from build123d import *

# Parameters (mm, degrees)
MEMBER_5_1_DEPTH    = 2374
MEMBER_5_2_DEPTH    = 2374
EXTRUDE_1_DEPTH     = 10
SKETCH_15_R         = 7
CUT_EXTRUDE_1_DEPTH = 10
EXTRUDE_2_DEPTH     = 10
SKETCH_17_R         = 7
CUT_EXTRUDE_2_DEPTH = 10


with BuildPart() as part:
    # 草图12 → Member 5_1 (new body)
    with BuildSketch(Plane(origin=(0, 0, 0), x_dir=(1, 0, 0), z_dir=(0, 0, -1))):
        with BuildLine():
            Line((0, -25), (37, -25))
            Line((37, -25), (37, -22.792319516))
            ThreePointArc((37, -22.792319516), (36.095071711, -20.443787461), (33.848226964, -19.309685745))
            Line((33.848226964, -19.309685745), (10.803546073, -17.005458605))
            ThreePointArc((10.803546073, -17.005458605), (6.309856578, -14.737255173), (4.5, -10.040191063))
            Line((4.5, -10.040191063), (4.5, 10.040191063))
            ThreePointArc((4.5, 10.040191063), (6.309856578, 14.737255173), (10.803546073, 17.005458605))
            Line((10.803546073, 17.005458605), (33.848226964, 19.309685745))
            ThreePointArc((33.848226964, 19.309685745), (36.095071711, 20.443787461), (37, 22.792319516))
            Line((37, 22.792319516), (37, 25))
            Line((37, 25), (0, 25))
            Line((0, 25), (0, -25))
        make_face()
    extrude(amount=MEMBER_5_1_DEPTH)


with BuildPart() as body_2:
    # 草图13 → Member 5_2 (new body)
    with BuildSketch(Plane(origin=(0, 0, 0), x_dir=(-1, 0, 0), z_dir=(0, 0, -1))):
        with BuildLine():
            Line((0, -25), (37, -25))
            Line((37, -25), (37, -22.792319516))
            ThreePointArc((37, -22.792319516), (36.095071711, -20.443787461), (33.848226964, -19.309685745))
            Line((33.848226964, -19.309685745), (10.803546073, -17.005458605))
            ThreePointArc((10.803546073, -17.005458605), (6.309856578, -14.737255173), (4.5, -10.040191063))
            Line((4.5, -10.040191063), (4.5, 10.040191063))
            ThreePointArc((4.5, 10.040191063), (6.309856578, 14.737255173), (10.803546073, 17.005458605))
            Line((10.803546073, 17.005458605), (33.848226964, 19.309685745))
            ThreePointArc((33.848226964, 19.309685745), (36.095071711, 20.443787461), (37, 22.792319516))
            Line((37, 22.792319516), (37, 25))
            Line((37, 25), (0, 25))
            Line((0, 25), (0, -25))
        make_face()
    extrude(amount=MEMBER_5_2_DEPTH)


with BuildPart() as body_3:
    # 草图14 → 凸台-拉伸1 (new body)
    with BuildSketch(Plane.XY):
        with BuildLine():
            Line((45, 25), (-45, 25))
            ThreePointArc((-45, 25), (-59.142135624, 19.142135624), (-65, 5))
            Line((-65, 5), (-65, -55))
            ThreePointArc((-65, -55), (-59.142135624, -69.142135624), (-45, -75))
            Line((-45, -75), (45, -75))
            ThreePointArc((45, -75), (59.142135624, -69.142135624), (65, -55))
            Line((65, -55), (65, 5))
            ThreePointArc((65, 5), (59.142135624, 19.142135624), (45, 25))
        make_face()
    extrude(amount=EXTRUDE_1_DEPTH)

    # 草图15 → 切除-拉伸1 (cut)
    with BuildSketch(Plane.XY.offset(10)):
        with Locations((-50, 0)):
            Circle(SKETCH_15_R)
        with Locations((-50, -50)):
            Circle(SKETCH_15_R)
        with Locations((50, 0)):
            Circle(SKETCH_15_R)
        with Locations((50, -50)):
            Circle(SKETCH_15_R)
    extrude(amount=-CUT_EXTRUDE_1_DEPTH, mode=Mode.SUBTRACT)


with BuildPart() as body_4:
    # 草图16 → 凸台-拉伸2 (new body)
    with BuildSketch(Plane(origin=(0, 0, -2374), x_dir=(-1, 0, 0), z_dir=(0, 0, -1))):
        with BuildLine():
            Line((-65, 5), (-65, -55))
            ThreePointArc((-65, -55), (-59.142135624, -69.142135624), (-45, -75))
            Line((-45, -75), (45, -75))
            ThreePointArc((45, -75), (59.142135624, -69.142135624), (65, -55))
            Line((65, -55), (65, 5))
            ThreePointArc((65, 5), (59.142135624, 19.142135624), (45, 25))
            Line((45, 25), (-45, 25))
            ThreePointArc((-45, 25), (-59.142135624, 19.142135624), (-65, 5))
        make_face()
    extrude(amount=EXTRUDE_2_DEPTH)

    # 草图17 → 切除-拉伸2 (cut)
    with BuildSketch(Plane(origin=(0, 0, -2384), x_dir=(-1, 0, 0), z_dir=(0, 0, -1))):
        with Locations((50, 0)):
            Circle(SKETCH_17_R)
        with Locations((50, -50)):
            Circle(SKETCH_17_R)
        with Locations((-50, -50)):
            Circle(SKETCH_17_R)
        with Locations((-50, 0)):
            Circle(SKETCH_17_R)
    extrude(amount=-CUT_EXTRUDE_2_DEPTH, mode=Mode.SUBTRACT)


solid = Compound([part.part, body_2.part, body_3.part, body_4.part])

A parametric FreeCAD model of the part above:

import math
import FreeCAD as App
import Part
import Sketcher
Q = App.Units.Quantity

doc = App.newDocument("Part")
params = doc.addObject("Spreadsheet::Sheet", "Params")
for row, (alias, value) in enumerate([
    ("sketch1_radius", "7 mm"),
    ("sketch1_radius2", "3.5 mm"),
    ("sketch1_width", "37 mm"),
    ("sketch1_height", "50 mm"),
    ("pad1_length", "2374 mm"),
    ("sketch2_radius", "7 mm"),
    ("sketch2_radius2", "3.5 mm"),
    ("sketch2_width", "37 mm"),
    ("sketch2_height", "50 mm"),
    ("pad2_length", "2374 mm"),
    ("sketch3_radius", "20 mm"),
    ("sketch3_width", "90 mm"),
    ("sketch3_height", "60 mm"),
    ("pad3_length", "10 mm"),
    ("sketch4_diameter", "14 mm"),
    ("pocket1_length", "10 mm"),
    ("sketch5_radius", "20 mm"),
    ("sketch5_width", "90 mm"),
    ("sketch5_height", "60 mm"),
    ("pad4_length", "10 mm"),
    ("sketch6_diameter", "14 mm"),
    ("pocket2_length", "10 mm"),
], start=1):
    params.set(f"A{row}", alias)
    params.set(f"B{row}", "=" + value)
    params.setAlias(f"B{row}", alias)

body = doc.addObject("PartDesign::Body", "Body")

# Sketch on XY plane
sketch1 = doc.addObject("Sketcher::SketchObject", "Sketch")
body.addObject(sketch1)
sketch1.AttachmentSupport = (doc.XY_Plane, [""])
sketch1.MapMode = "FlatFace"
sketch1.addGeometry([
    Part.LineSegment(App.Vector(0, 25, 0), App.Vector(37, 25, 0)),  # 0
    Part.LineSegment(App.Vector(37, 25, 0), App.Vector(37, 22.8, 0)),  # 1
    Part.ArcOfCircle(Part.Circle(App.Vector(33.5, 22.8, 0), App.Vector(0, 0, 1), 3.5), math.radians(-84), math.radians(0)),  # 2
    Part.LineSegment(App.Vector(33.8, 19.3, 0), App.Vector(10.8, 17, 0)),  # 3
    Part.ArcOfCircle(Part.Circle(App.Vector(11.5, 10, 0), App.Vector(0, 0, 1), 7), math.radians(96), math.radians(180)),  # 4
    Part.LineSegment(App.Vector(4.5, 10, 0), App.Vector(4.5, -10, 0)),  # 5
    Part.ArcOfCircle(Part.Circle(App.Vector(11.5, -10, 0), App.Vector(0, 0, 1), 7), math.radians(-180), math.radians(-96)),  # 6
    Part.LineSegment(App.Vector(10.8, -17, 0), App.Vector(33.8, -19.3, 0)),  # 7
    Part.ArcOfCircle(Part.Circle(App.Vector(33.5, -22.8, 0), App.Vector(0, 0, 1), 3.5), math.radians(0), math.radians(84)),  # 8
    Part.LineSegment(App.Vector(37, -22.8, 0), App.Vector(37, -25, 0)),  # 9
    Part.LineSegment(App.Vector(37, -25, 0), App.Vector(0, -25, 0)),  # 10
    Part.LineSegment(App.Vector(0, -25, 0), App.Vector(0, 25, 0)),  # 11
], False)
sketch1.addConstraint([
    Sketcher.Constraint("Coincident", 0, 2, 1, 1),
    Sketcher.Constraint("Tangent", 1, 2, 2, 2),
    Sketcher.Constraint("Tangent", 2, 1, 3, 1),
    Sketcher.Constraint("Tangent", 3, 2, 4, 1),
    Sketcher.Constraint("Tangent", 4, 2, 5, 1),
    Sketcher.Constraint("Tangent", 5, 2, 6, 1),
    Sketcher.Constraint("Tangent", 6, 2, 7, 1),
    Sketcher.Constraint("Tangent", 7, 2, 8, 2),
    Sketcher.Constraint("Tangent", 8, 1, 9, 1),
    Sketcher.Constraint("Coincident", 9, 2, 10, 1),
    Sketcher.Constraint("Coincident", 10, 2, 11, 1),
    Sketcher.Constraint("Coincident", 11, 2, 0, 1),
    Sketcher.Constraint("Horizontal", 0),
    Sketcher.Constraint("Vertical", 1),
    Sketcher.Constraint("Vertical", 5),
    Sketcher.Constraint("Vertical", 9),
    Sketcher.Constraint("Horizontal", 10),
    Sketcher.Constraint("Vertical", 11),
    Sketcher.Constraint("Equal", 4, 6),
    Sketcher.Constraint("Equal", 2, 8),
    Sketcher.Constraint("Symmetric", 10, 2, 11, 2, -1, 1),
    Sketcher.Constraint("Symmetric", 2, 3, 8, 3, -1),
    Sketcher.Constraint("Vertical", 3, 2, 6, 2),
    Sketcher.Constraint("Radius", 4, 7.0),
    Sketcher.Constraint("Radius", 2, 3.5),
    Sketcher.Constraint("DistanceX", 0, 1, 0, 2, 37.0),
    Sketcher.Constraint("DistanceY", 11, 1, 11, 2, 50.0),
    Sketcher.Constraint("DistanceX", 4, 3, 2, 3, 22.0),
    Sketcher.Constraint("Angle", 3, Q("-174.29 deg")),
    Sketcher.Constraint("DistanceY", 1, 2, 1, 1, 2.20768),
])
sketch1.setExpression("Constraints[23]", "Params.sketch1_radius")
sketch1.setExpression("Constraints[24]", "Params.sketch1_radius2")
sketch1.setExpression("Constraints[25]", "Params.sketch1_width")
sketch1.setExpression("Constraints[26]", "Params.sketch1_height")
pad1 = doc.addObject("PartDesign::Pad", "Pad")
body.addObject(pad1)
pad1.Profile = sketch1
pad1.setExpression("Length", "Params.pad1_length")
pad1.Reversed = True
body2 = doc.addObject("PartDesign::Body", "Body001")

# Sketch on XY plane
sketch2 = doc.addObject("Sketcher::SketchObject", "Sketch001")
body2.addObject(sketch2)
sketch2.AttachmentSupport = (doc.getObject("XY_Plane001"), [""])
sketch2.MapMode = "FlatFace"
sketch2.addGeometry([
    Part.LineSegment(App.Vector(0, -25, 0), App.Vector(-37, -25, 0)),  # 0
    Part.LineSegment(App.Vector(-37, -25, 0), App.Vector(-37, -22.8, 0)),  # 1
    Part.ArcOfCircle(Part.Circle(App.Vector(-33.5, -22.8, 0), App.Vector(0, 0, 1), 3.5), math.radians(96), math.radians(180)),  # 2
    Part.LineSegment(App.Vector(-33.8, -19.3, 0), App.Vector(-10.8, -17, 0)),  # 3
    Part.ArcOfCircle(Part.Circle(App.Vector(-11.5, -10, 0), App.Vector(0, 0, 1), 7), math.radians(-84), math.radians(0)),  # 4
    Part.LineSegment(App.Vector(-4.5, -10, 0), App.Vector(-4.5, 10, 0)),  # 5
    Part.ArcOfCircle(Part.Circle(App.Vector(-11.5, 10, 0), App.Vector(0, 0, 1), 7), math.radians(0), math.radians(84)),  # 6
    Part.LineSegment(App.Vector(-10.8, 17, 0), App.Vector(-33.8, 19.3, 0)),  # 7
    Part.ArcOfCircle(Part.Circle(App.Vector(-33.5, 22.8, 0), App.Vector(0, 0, 1), 3.5), math.radians(-180), math.radians(-96)),  # 8
    Part.LineSegment(App.Vector(-37, 22.8, 0), App.Vector(-37, 25, 0)),  # 9
    Part.LineSegment(App.Vector(-37, 25, 0), App.Vector(0, 25, 0)),  # 10
    Part.LineSegment(App.Vector(0, 25, 0), App.Vector(0, -25, 0)),  # 11
], False)
sketch2.addConstraint([
    Sketcher.Constraint("Coincident", 0, 2, 1, 1),
    Sketcher.Constraint("Tangent", 1, 2, 2, 2),
    Sketcher.Constraint("Tangent", 2, 1, 3, 1),
    Sketcher.Constraint("Tangent", 3, 2, 4, 1),
    Sketcher.Constraint("Tangent", 4, 2, 5, 1),
    Sketcher.Constraint("Tangent", 5, 2, 6, 1),
    Sketcher.Constraint("Tangent", 6, 2, 7, 1),
    Sketcher.Constraint("Tangent", 7, 2, 8, 2),
    Sketcher.Constraint("Tangent", 8, 1, 9, 1),
    Sketcher.Constraint("Coincident", 9, 2, 10, 1),
    Sketcher.Constraint("Coincident", 10, 2, 11, 1),
    Sketcher.Constraint("Coincident", 11, 2, 0, 1),
    Sketcher.Constraint("Horizontal", 0),
    Sketcher.Constraint("Vertical", 1),
    Sketcher.Constraint("Vertical", 5),
    Sketcher.Constraint("Vertical", 9),
    Sketcher.Constraint("Horizontal", 10),
    Sketcher.Constraint("Vertical", 11),
    Sketcher.Constraint("Equal", 4, 6),
    Sketcher.Constraint("Equal", 2, 8),
    Sketcher.Constraint("Symmetric", 10, 2, 11, 2, -1, 1),
    Sketcher.Constraint("Symmetric", 2, 3, 8, 3, -1),
    Sketcher.Constraint("Vertical", 3, 2, 6, 2),
    Sketcher.Constraint("Radius", 4, 7.0),
    Sketcher.Constraint("Radius", 2, 3.5),
    Sketcher.Constraint("DistanceX", 0, 2, 0, 1, 37.0),
    Sketcher.Constraint("DistanceY", 11, 2, 11, 1, 50.0),
    Sketcher.Constraint("DistanceX", 2, 3, 4, 3, 22.0),
    Sketcher.Constraint("Angle", 3, Q("5.71 deg")),
    Sketcher.Constraint("DistanceY", 1, 1, 1, 2, 2.20768),
])
sketch2.setExpression("Constraints[23]", "Params.sketch2_radius")
sketch2.setExpression("Constraints[24]", "Params.sketch2_radius2")
sketch2.setExpression("Constraints[25]", "Params.sketch2_width")
sketch2.setExpression("Constraints[26]", "Params.sketch2_height")
pad2 = doc.addObject("PartDesign::Pad", "Pad001")
body2.addObject(pad2)
pad2.Profile = sketch2
pad2.setExpression("Length", "Params.pad2_length")
pad2.Reversed = True
body3 = doc.addObject("PartDesign::Body", "Body002")

# Sketch on XY plane
sketch3 = doc.addObject("Sketcher::SketchObject", "Sketch002")
body3.addObject(sketch3)
sketch3.AttachmentSupport = (doc.getObject("XY_Plane002"), [""])
sketch3.MapMode = "FlatFace"
sketch3.addGeometry([
    Part.LineSegment(App.Vector(45, 25, 0), App.Vector(-45, 25, 0)),  # 0
    Part.ArcOfCircle(Part.Circle(App.Vector(-45, 5, 0), App.Vector(0, 0, 1), 20), math.radians(90), math.radians(180)),  # 1
    Part.LineSegment(App.Vector(-65, 5, 0), App.Vector(-65, -55, 0)),  # 2
    Part.ArcOfCircle(Part.Circle(App.Vector(-45, -55, 0), App.Vector(0, 0, 1), 20), math.radians(180), math.radians(270)),  # 3
    Part.LineSegment(App.Vector(-45, -75, 0), App.Vector(45, -75, 0)),  # 4
    Part.ArcOfCircle(Part.Circle(App.Vector(45, -55, 0), App.Vector(0, 0, 1), 20), math.radians(-90), math.radians(0)),  # 5
    Part.LineSegment(App.Vector(65, -55, 0), App.Vector(65, 5, 0)),  # 6
    Part.ArcOfCircle(Part.Circle(App.Vector(45, 5, 0), App.Vector(0, 0, 1), 20), math.radians(0), math.radians(90)),  # 7
], False)
sketch3.addConstraint([
    Sketcher.Constraint("Tangent", 0, 2, 1, 1),
    Sketcher.Constraint("Tangent", 1, 2, 2, 1),
    Sketcher.Constraint("Tangent", 2, 2, 3, 1),
    Sketcher.Constraint("Tangent", 3, 2, 4, 1),
    Sketcher.Constraint("Tangent", 4, 2, 5, 1),
    Sketcher.Constraint("Tangent", 5, 2, 6, 1),
    Sketcher.Constraint("Tangent", 6, 2, 7, 1),
    Sketcher.Constraint("Tangent", 7, 2, 0, 1),
    Sketcher.Constraint("Horizontal", 0),
    Sketcher.Constraint("Vertical", 2),
    Sketcher.Constraint("Horizontal", 4),
    Sketcher.Constraint("Vertical", 6),
    Sketcher.Constraint("Equal", 1, 3),
    Sketcher.Constraint("Equal", 3, 5),
    Sketcher.Constraint("Equal", 5, 7),
    Sketcher.Constraint("Radius", 1, 20.0),
    Sketcher.Constraint("DistanceX", 0, 2, 0, 1, 90.0),
    Sketcher.Constraint("DistanceY", 2, 2, 2, 1, 60.0),
    Sketcher.Constraint("DistanceX", 1, 3, -1, 1, 45.0),
    Sketcher.Constraint("DistanceY", -1, 1, 1, 3, 5.0),
])
sketch3.setExpression("Constraints[15]", "Params.sketch3_radius")
sketch3.setExpression("Constraints[16]", "Params.sketch3_width")
sketch3.setExpression("Constraints[17]", "Params.sketch3_height")
pad3 = doc.addObject("PartDesign::Pad", "Pad002")
body3.addObject(pad3)
pad3.Profile = sketch3
pad3.setExpression("Length", "Params.pad3_length")

# Sketch on XY plane
sketch4 = doc.addObject("Sketcher::SketchObject", "Sketch003")
body3.addObject(sketch4)
sketch4.AttachmentSupport = (doc.getObject("XY_Plane002"), [""])
sketch4.MapMode = "FlatFace"
sketch4.AttachmentOffset = App.Placement(App.Vector(0, 0, 10), App.Rotation())
sketch4.addGeometry([
    Part.Circle(App.Vector(-50, 0, 0), App.Vector(0, 0, 1), 7),
    Part.Circle(App.Vector(-50, -50, 0), App.Vector(0, 0, 1), 7),
    Part.Circle(App.Vector(50, 0, 0), App.Vector(0, 0, 1), 7),
    Part.Circle(App.Vector(50, -50, 0), App.Vector(0, 0, 1), 7),
], False)
sketch4.addConstraint([
    Sketcher.Constraint("Equal", 0, 1),
    Sketcher.Constraint("Equal", 1, 2),
    Sketcher.Constraint("Equal", 2, 3),
    Sketcher.Constraint("Symmetric", 0, 3, 2, 3, -1, 1),
    Sketcher.Constraint("Symmetric", 1, 3, 3, 3, -2),
    Sketcher.Constraint("PointOnObject", 0, 3, -1),
    Sketcher.Constraint("Vertical", 0, 3, 1, 3),
    Sketcher.Constraint("Diameter", 0, 14.0),
    Sketcher.Constraint("DistanceX", 0, 3, -1, 1, 50.0),
    Sketcher.Constraint("DistanceY", 1, 3, -1, 1, 50.0),
])
sketch4.setExpression("Constraints[7]", "Params.sketch4_diameter")
pocket1 = doc.addObject("PartDesign::Pocket", "Pocket")
body3.addObject(pocket1)
pocket1.Profile = sketch4
pocket1.setExpression("Length", "Params.pocket1_length")
body4 = doc.addObject("PartDesign::Body", "Body003")

# Sketch on XY plane
sketch5 = doc.addObject("Sketcher::SketchObject", "Sketch004")
body4.addObject(sketch5)
sketch5.AttachmentSupport = (doc.getObject("XY_Plane003"), [""])
sketch5.MapMode = "FlatFace"
sketch5.AttachmentOffset = App.Placement(App.Vector(0, 0, -2374), App.Rotation())
sketch5.addGeometry([
    Part.LineSegment(App.Vector(65, 5, 0), App.Vector(65, -55, 0)),  # 0
    Part.ArcOfCircle(Part.Circle(App.Vector(45, -55, 0), App.Vector(0, 0, 1), 20), math.radians(-90), math.radians(0)),  # 1
    Part.LineSegment(App.Vector(45, -75, 0), App.Vector(-45, -75, 0)),  # 2
    Part.ArcOfCircle(Part.Circle(App.Vector(-45, -55, 0), App.Vector(0, 0, 1), 20), math.radians(180), math.radians(270)),  # 3
    Part.LineSegment(App.Vector(-65, -55, 0), App.Vector(-65, 5, 0)),  # 4
    Part.ArcOfCircle(Part.Circle(App.Vector(-45, 5, 0), App.Vector(0, 0, 1), 20), math.radians(90), math.radians(180)),  # 5
    Part.LineSegment(App.Vector(-45, 25, 0), App.Vector(45, 25, 0)),  # 6
    Part.ArcOfCircle(Part.Circle(App.Vector(45, 5, 0), App.Vector(0, 0, 1), 20), math.radians(0), math.radians(90)),  # 7
], False)
sketch5.addConstraint([
    Sketcher.Constraint("Tangent", 0, 2, 1, 2),
    Sketcher.Constraint("Tangent", 1, 1, 2, 1),
    Sketcher.Constraint("Tangent", 2, 2, 3, 2),
    Sketcher.Constraint("Tangent", 3, 1, 4, 1),
    Sketcher.Constraint("Tangent", 4, 2, 5, 2),
    Sketcher.Constraint("Tangent", 5, 1, 6, 1),
    Sketcher.Constraint("Tangent", 6, 2, 7, 2),
    Sketcher.Constraint("Tangent", 7, 1, 0, 1),
    Sketcher.Constraint("Vertical", 0),
    Sketcher.Constraint("Horizontal", 2),
    Sketcher.Constraint("Vertical", 4),
    Sketcher.Constraint("Horizontal", 6),
    Sketcher.Constraint("Equal", 1, 3),
    Sketcher.Constraint("Equal", 3, 5),
    Sketcher.Constraint("Equal", 5, 7),
    Sketcher.Constraint("Radius", 1, 20.0),
    Sketcher.Constraint("DistanceX", 2, 2, 2, 1, 90.0),
    Sketcher.Constraint("DistanceY", 0, 2, 0, 1, 60.0),
    Sketcher.Constraint("DistanceX", -1, 1, 1, 3, 45.0),
    Sketcher.Constraint("DistanceY", 1, 3, -1, 1, 55.0),
])
sketch5.setExpression("Constraints[15]", "Params.sketch5_radius")
sketch5.setExpression("Constraints[16]", "Params.sketch5_width")
sketch5.setExpression("Constraints[17]", "Params.sketch5_height")
pad4 = doc.addObject("PartDesign::Pad", "Pad003")
body4.addObject(pad4)
pad4.Profile = sketch5
pad4.setExpression("Length", "Params.pad4_length")
pad4.Reversed = True

# Sketch on XY plane
sketch6 = doc.addObject("Sketcher::SketchObject", "Sketch005")
body4.addObject(sketch6)
sketch6.AttachmentSupport = (doc.getObject("XY_Plane003"), [""])
sketch6.MapMode = "FlatFace"
sketch6.AttachmentOffset = App.Placement(App.Vector(0, 0, -2384), App.Rotation())
sketch6.addGeometry([
    Part.Circle(App.Vector(-50, 0, 0), App.Vector(0, 0, 1), 7),
    Part.Circle(App.Vector(-50, -50, 0), App.Vector(0, 0, 1), 7),
    Part.Circle(App.Vector(50, -50, 0), App.Vector(0, 0, 1), 7),
    Part.Circle(App.Vector(50, 0, 0), App.Vector(0, 0, 1), 7),
], False)
sketch6.addConstraint([
    Sketcher.Constraint("Equal", 0, 1),
    Sketcher.Constraint("Equal", 1, 2),
    Sketcher.Constraint("Equal", 2, 3),
    Sketcher.Constraint("Symmetric", 0, 3, 3, 3, -1, 1),
    Sketcher.Constraint("Symmetric", 1, 3, 2, 3, -2),
    Sketcher.Constraint("PointOnObject", 0, 3, -1),
    Sketcher.Constraint("Vertical", 0, 3, 1, 3),
    Sketcher.Constraint("Diameter", 0, 14.0),
    Sketcher.Constraint("DistanceX", 0, 3, -1, 1, 50.0),
    Sketcher.Constraint("DistanceY", 1, 3, -1, 1, 50.0),
])
sketch6.setExpression("Constraints[7]", "Params.sketch6_diameter")
pocket2 = doc.addObject("PartDesign::Pocket", "Pocket001")
body4.addObject(pocket2)
pocket2.Profile = sketch6
pocket2.setExpression("Length", "Params.pocket2_length")
pocket2.Reversed = True

doc.recompute()
